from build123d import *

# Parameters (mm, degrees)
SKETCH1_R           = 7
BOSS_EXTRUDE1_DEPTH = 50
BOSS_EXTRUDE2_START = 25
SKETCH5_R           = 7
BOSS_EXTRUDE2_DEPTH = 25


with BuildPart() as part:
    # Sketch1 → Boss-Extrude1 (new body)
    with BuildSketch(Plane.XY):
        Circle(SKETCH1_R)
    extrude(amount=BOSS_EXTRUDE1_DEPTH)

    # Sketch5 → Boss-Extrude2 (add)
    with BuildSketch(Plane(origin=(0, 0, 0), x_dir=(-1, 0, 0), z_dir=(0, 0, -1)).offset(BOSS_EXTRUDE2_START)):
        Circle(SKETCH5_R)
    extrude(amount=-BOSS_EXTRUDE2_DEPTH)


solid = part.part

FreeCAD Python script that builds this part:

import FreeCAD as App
import Part
import Sketcher
Q = App.Units.Quantity

doc = App.newDocument("Part")
body = doc.addObject("PartDesign::Body", "Body")

sketch1 = body.newObject("Sketcher::SketchObject", "Sketch")
sketch1.AttachmentSupport = (doc.getObject("XY_Plane"), [""])
sketch1.MapMode = "FlatFace"
sketch1.addGeometry(Part.Circle(App.Vector(0, 0, 0), App.Vector(0, 0, 1), 7), False)
sketch1.addConstraint([
    Sketcher.Constraint("Coincident", 0, 3, -1, 1),
    Sketcher.Constraint("Diameter", 0, Q("14 mm")),
])
pad1 = body.newObject("PartDesign::Pad", "Pad")
pad1.Profile = sketch1
pad1.Length = 50

sketch2 = body.newObject("Sketcher::SketchObject", "Sketch001")
sketch2.AttachmentSupport = (doc.getObject("XY_Plane"), [""])
sketch2.MapMode = "FlatFace"
sketch2.AttachmentOffset = App.Placement(App.Vector(0, 0, -25), App.Rotation())
sketch2.addGeometry(Part.Circle(App.Vector(0, 0, 0), App.Vector(0, 0, 1), 7), False)
sketch2.addConstraint([
    Sketcher.Constraint("Coincident", 0, 3, -1, 1),
    Sketcher.Constraint("Diameter", 0, Q("14 mm")),
])
pad2 = body.newObject("PartDesign::Pad", "Pad001")
pad2.Profile = sketch2
pad2.Length = 25

doc.recompute()
